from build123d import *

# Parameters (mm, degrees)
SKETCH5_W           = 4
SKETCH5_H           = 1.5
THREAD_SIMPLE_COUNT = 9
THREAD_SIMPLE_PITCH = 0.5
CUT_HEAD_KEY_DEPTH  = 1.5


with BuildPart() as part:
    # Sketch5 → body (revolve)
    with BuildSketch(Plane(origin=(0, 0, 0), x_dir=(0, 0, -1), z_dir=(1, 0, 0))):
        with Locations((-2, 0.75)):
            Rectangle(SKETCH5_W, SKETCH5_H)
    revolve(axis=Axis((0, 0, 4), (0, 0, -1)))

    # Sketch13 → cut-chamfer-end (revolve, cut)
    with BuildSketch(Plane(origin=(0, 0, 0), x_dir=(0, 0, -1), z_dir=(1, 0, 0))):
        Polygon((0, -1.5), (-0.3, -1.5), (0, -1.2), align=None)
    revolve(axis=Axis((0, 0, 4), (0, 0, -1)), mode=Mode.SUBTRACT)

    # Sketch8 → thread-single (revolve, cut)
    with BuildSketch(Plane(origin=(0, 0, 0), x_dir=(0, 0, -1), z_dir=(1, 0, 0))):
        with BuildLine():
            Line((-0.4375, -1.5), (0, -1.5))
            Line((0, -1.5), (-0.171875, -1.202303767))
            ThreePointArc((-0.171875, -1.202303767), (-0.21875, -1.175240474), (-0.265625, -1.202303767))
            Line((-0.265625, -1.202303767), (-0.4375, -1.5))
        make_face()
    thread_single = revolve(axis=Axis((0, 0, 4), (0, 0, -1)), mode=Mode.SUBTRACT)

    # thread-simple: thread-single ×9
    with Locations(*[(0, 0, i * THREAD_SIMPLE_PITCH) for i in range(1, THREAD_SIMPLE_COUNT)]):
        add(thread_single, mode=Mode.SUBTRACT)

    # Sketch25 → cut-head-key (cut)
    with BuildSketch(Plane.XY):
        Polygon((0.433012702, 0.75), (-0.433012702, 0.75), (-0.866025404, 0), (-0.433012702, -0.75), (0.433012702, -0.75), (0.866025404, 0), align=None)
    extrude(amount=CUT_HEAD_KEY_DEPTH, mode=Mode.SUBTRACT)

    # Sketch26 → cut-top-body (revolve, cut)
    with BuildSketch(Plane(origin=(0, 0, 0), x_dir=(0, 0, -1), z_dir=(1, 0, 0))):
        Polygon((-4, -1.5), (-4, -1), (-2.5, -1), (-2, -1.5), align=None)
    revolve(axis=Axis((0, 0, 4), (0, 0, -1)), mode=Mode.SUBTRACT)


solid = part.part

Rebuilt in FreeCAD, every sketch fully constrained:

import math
import FreeCAD as App
import Part
import Sketcher
from FreeCAD import Vector
Q = App.Units.Quantity


def add_polygon(sketch, points):
    """Adds a closed chain of lines whose ends are joined by coincident constraints."""
    first, n = sketch.GeometryCount, len(points)
    for a, b in zip(points, points[1:] + points[:1]):
        sketch.addGeometry(Part.LineSegment(App.Vector(*a, 0), App.Vector(*b, 0)), False)
    for i in range(n):
        sketch.addConstraint(Sketcher.Constraint("Coincident", first + i, 2, first + (i + 1) % n, 1))

doc = App.newDocument("Part")
body = doc.addObject("PartDesign::Body", "Body")

# Sketch on YZ plane
sketch1 = doc.addObject("Sketcher::SketchObject", "Sketch")
body.addObject(sketch1)
sketch1.AttachmentSupport = (doc.YZ_Plane, [""])
sketch1.MapMode = "FlatFace"
add_polygon(sketch1, [(1.5, 4), (0, 4), (0, 0), (1.5, 0)])  # lines 0-3
sketch1.addConstraint(Sketcher.Constraint("Horizontal", 0))
sketch1.addConstraint(Sketcher.Constraint("Vertical", 1))
sketch1.addConstraint(Sketcher.Constraint("Horizontal", 2))
sketch1.addConstraint(Sketcher.Constraint("Vertical", 3))
sketch1.addConstraint(Sketcher.Constraint("Coincident", 1, 2, -1, 1))
sketch1.addConstraint(Sketcher.Constraint("DistanceY", 1, 2, 1, 1, Q("4 mm")))
sketch1.addConstraint(Sketcher.Constraint("DistanceX", 0, 2, 0, 1, Q("1.5 mm")))
revolution = doc.addObject("PartDesign::Revolution", "Revolution")
body.addObject(revolution)
revolution.Profile = sketch1
revolution.ReferenceAxis = (sketch1, ["V_Axis"])
revolution.Angle = 360

# Sketch on YZ plane
sketch2 = doc.addObject("Sketcher::SketchObject", "Sketch001")
body.addObject(sketch2)
sketch2.AttachmentSupport = (doc.YZ_Plane, [""])
sketch2.MapMode = "FlatFace"
add_polygon(sketch2, [(-1.5, 0.3), (-1.5, 0), (-1.2, 0)])  # lines 0-2
sketch2.addConstraint(Sketcher.Constraint("Vertical", 0))
sketch2.addConstraint(Sketcher.Constraint("Horizontal", 1))
sketch2.addConstraint(Sketcher.Constraint("PointOnObject", 0, 2, -1))
sketch2.addConstraint(Sketcher.Constraint("Equal", 1, 0))
sketch2.addConstraint(Sketcher.Constraint("DistanceX", 1, 1, 1, 2, Q("0.3 mm")))
sketch2.addConstraint(Sketcher.Constraint("DistanceX", 0, 2, -1, 1, Q("1.5 mm")))
groove = doc.addObject("PartDesign::Groove", "Groove")
body.addObject(groove)
groove.Profile = sketch2
groove.ReferenceAxis = (sketch2, ["V_Axis"])
groove.Angle = 360

# Sketch on YZ plane
sketch3 = doc.addObject("Sketcher::SketchObject", "Sketch002")
body.addObject(sketch3)
sketch3.AttachmentSupport = (doc.YZ_Plane, [""])
sketch3.MapMode = "FlatFace"
sketch3.addGeometry(Part.LineSegment(Vector(-1.5, 0.44, 0), Vector(-1.5, 0, 0)), False)
sketch3.addGeometry(Part.LineSegment(Vector(-1.5, 0, 0), Vector(-1.2, 0.17, 0)), False)
sketch3.addGeometry(Part.ArcOfCircle(Part.Circle(Vector(-1.23, 0.22, 0), Vector(0, 0, 1), 0.05), math.radians(-60), math.radians(60)), False)
sketch3.addGeometry(Part.LineSegment(Vector(-1.2, 0.27, 0), Vector(-1.5, 0.44, 0)), False)
sketch3.addConstraint(Sketcher.Constraint("Coincident", 0, 2, 1, 1))
sketch3.addConstraint(Sketcher.Constraint("Tangent", 1, 2, 2, 1))
sketch3.addConstraint(Sketcher.Constraint("Tangent", 2, 2, 3, 1))
sketch3.addConstraint(Sketcher.Constraint("Coincident", 3, 2, 0, 1))
sketch3.addConstraint(Sketcher.Constraint("Vertical", 0))
sketch3.addConstraint(Sketcher.Constraint("PointOnObject", 0, 2, -1))
sketch3.addConstraint(Sketcher.Constraint("Vertical", 1, 2, 2, 2))
sketch3.addConstraint(Sketcher.Constraint("Angle", 1, Q("30 deg")))
sketch3.addConstraint(Sketcher.Constraint("DistanceX", 0, 2, -1, 1, Q("1.5 mm")))
sketch3.addConstraint(Sketcher.Constraint("DistanceY", 0, 2, 0, 1, Q("0.4375 mm")))
sketch3.addConstraint(Sketcher.Constraint("Radius", 2, Q("0.054127 mm")))
groove2 = doc.addObject("PartDesign::Groove", "Groove001")
body.addObject(groove2)
groove2.Profile = sketch3
groove2.ReferenceAxis = (sketch3, ["V_Axis"])
groove2.Angle = 360
doc.recompute()

linearpattern = doc.addObject("PartDesign::LinearPattern", "LinearPattern")
body.addObject(linearpattern)
linearpattern.Originals = [groove2]
linearpattern.Direction = (doc.Z_Axis, [""])
linearpattern.Mode = "offset"
linearpattern.Offset = 0.5
linearpattern.Occurrences = 9
body.Tip = linearpattern

# Sketch on XY plane
sketch4 = doc.addObject("Sketcher::SketchObject", "Sketch003")
body.addObject(sketch4)
sketch4.AttachmentSupport = (doc.XY_Plane, [""])
sketch4.MapMode = "FlatFace"
add_polygon(sketch4, [(0.4, 0.8), (-0.4, 0.8), (-0.9, 0), (-0.4, -0.8), (0.4, -0.8), (0.9, 0)])  # lines 0-5
sketch4.addConstraint(Sketcher.Constraint("Horizontal", 0))
sketch4.addConstraint(Sketcher.Constraint("Horizontal", 3))
sketch4.addConstraint(Sketcher.Constraint("Symmetric", 0, 2, 3, 2, -1, 1))
sketch4.addConstraint(Sketcher.Constraint("Symmetric", 1, 2, 4, 2, -1, 1))
sketch4.addConstraint(Sketcher.Constraint("PointOnObject", 1, 2, -1))
sketch4.addConstraint(Sketcher.Constraint("Parallel", 2, 5))
sketch4.addConstraint(Sketcher.Constraint("Vertical", 0, 2, 2, 2))
sketch4.addConstraint(Sketcher.Constraint("Angle", 1, Q("-120 deg")))
sketch4.addConstraint(Sketcher.Constraint("DistanceY", 2, 2, 0, 2, Q("1.5 mm")))
sketch4.addConstraint(Sketcher.Constraint("DistanceX", 0, 2, 0, 1, Q("0.866025 mm")))
pocket1 = doc.addObject("PartDesign::Pocket", "Pocket")
body.addObject(pocket1)
pocket1.Profile = sketch4
pocket1.Length = 1.5
pocket1.Reversed = True

# Sketch on YZ plane
sketch5 = doc.addObject("Sketcher::SketchObject", "Sketch004")
body.addObject(sketch5)
sketch5.AttachmentSupport = (doc.YZ_Plane, [""])
sketch5.MapMode = "FlatFace"
add_polygon(sketch5, [(-1, 4), (-1.5, 4), (-1.5, 2), (-1, 2.5)])  # lines 0-3
sketch5.addConstraint(Sketcher.Constraint("Horizontal", 0))
sketch5.addConstraint(Sketcher.Constraint("Vertical", 1))
sketch5.addConstraint(Sketcher.Constraint("Vertical", 3))
sketch5.addConstraint(Sketcher.Constraint("DistanceY", 1, 2, 1, 1, Q("2 mm")))
sketch5.addConstraint(Sketcher.Constraint("Angle", 2, Q("45 deg")))
sketch5.addConstraint(Sketcher.Constraint("DistanceX", 0, 2, 0, 1, Q("0.5 mm")))
sketch5.addConstraint(Sketcher.Constraint("DistanceY", -1, 1, 0, 2, Q("4 mm")))
sketch5.addConstraint(Sketcher.Constraint("DistanceX", 2, 2, -1, 1, Q("1 mm")))
groove3 = doc.addObject("PartDesign::Groove", "Groove002")
body.addObject(groove3)
groove3.Profile = sketch5
groove3.ReferenceAxis = (sketch5, ["V_Axis"])
groove3.Angle = 360

doc.recompute()
